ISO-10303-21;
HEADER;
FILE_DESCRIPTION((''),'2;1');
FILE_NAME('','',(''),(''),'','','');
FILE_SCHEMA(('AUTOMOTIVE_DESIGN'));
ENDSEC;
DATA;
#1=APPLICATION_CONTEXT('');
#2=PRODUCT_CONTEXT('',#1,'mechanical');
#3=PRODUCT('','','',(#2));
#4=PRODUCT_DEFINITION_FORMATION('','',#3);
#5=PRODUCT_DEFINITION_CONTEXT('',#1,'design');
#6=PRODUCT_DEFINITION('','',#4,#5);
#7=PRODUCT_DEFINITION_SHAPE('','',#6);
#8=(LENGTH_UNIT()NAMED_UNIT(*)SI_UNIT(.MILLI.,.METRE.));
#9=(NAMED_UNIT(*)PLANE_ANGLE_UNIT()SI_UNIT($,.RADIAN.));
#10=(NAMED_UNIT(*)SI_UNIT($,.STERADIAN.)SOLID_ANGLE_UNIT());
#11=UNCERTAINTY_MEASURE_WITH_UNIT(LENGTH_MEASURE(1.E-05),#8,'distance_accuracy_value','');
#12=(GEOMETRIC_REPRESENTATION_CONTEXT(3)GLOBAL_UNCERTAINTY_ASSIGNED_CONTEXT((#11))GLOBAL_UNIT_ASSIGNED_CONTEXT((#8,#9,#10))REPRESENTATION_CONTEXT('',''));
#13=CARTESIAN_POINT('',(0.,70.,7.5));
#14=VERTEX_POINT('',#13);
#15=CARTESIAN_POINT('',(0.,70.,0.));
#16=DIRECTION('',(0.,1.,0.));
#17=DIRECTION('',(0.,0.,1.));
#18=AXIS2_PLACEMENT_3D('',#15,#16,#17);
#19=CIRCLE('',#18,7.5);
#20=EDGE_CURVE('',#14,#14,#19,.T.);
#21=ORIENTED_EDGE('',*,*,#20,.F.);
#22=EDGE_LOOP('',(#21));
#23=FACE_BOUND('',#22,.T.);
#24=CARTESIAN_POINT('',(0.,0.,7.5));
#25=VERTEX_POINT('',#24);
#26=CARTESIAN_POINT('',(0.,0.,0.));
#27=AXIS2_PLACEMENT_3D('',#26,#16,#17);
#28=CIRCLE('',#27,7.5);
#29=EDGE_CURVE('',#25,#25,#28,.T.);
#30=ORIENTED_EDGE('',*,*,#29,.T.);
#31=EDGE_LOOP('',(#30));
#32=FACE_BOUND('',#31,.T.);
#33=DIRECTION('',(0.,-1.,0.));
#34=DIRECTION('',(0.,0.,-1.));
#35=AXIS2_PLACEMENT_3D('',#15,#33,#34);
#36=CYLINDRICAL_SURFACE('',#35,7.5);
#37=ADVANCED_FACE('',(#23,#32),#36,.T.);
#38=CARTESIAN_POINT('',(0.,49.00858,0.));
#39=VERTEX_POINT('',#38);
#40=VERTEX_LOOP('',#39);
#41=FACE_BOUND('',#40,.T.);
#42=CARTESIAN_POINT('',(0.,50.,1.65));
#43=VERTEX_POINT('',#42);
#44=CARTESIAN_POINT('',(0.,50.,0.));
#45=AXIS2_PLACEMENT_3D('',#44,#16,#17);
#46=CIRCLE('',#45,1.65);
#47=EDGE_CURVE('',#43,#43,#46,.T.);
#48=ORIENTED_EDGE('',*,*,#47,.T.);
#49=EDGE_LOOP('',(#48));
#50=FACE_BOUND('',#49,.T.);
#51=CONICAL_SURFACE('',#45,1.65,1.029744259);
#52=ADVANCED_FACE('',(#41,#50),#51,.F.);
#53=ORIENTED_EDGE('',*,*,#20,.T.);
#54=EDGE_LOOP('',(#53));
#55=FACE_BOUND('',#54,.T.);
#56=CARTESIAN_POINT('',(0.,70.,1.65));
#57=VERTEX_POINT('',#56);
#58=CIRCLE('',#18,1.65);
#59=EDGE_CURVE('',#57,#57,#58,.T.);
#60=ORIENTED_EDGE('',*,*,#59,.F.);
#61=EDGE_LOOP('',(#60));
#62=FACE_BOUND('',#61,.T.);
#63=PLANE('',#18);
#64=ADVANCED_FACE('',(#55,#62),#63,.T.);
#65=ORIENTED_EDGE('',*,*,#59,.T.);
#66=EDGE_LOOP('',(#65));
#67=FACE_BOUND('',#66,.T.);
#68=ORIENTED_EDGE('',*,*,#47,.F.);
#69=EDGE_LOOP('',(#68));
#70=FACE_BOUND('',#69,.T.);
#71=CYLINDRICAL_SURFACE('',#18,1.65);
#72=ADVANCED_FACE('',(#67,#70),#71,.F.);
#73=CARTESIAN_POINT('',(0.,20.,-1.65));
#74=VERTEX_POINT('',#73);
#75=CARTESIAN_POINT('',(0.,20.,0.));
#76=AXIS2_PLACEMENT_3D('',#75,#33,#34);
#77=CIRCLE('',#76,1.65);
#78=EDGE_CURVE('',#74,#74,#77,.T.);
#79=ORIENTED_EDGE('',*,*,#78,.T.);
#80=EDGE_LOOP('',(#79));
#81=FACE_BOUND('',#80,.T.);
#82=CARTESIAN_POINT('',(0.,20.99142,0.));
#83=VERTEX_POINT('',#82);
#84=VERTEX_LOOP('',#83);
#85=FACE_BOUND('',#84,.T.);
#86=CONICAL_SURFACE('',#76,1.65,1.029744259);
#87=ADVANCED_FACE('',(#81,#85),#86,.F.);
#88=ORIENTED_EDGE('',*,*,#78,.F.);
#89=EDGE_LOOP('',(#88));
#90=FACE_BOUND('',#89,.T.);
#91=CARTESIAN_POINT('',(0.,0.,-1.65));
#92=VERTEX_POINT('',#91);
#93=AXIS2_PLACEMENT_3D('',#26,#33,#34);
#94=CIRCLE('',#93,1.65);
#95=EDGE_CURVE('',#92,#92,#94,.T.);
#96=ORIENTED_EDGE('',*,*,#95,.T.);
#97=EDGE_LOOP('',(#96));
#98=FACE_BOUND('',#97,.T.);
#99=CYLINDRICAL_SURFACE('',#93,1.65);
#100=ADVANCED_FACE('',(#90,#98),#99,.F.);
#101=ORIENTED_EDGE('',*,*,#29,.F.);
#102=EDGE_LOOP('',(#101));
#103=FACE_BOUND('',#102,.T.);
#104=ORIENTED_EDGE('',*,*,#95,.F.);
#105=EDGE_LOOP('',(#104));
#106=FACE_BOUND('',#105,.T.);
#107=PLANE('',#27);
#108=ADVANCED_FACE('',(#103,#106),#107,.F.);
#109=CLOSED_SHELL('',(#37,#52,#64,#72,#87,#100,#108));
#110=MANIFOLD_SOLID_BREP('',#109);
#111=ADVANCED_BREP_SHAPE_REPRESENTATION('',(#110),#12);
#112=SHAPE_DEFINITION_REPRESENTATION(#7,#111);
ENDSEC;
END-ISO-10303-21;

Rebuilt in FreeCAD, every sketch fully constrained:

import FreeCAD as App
import Part
import Sketcher
from FreeCAD import Vector
Q = App.Units.Quantity

doc = App.newDocument("Part")
body = doc.addObject("PartDesign::Body", "Body")

# Sketch on XZ plane
sketch1 = body.newObject("Sketcher::SketchObject", "Sketch")
sketch1.AttachmentSupport = (doc.getObject("XZ_Plane"), [""])
sketch1.MapMode = "FlatFace"
sketch1.addGeometry(Part.Circle(Vector(0, 0, 0), Vector(0, 0, 1), 7.5), False)
sketch1.addConstraint([
    Sketcher.Constraint("Coincident", 0, 3, -1, 1),
    Sketcher.Constraint("Diameter", 0, 15.0),
])
pad1 = body.newObject("PartDesign::Pad", "Pad")
pad1.Profile = sketch1
pad1.Length = 70
pad1.Reversed = True

# Sketch on YZ plane
sketch2 = body.newObject("Sketcher::SketchObject", "Sketch001")
sketch2.AttachmentSupport = (doc.getObject("YZ_Plane"), [""])
sketch2.MapMode = "FlatFace"
sketch2.addGeometry([
    Part.LineSegment(Vector(49.00858, 0, 0), Vector(70, 0, 0)),
    Part.LineSegment(Vector(70, 0, 0), Vector(70, 1.65, 0)),
    Part.LineSegment(Vector(70, 1.65, 0), Vector(50, 1.65, 0)),
    Part.LineSegment(Vector(50, 1.65, 0), Vector(49.00858, 0, 0)),
], False)
sketch2.addConstraint([
    Sketcher.Constraint("Coincident", 0, 2, 1, 1),
    Sketcher.Constraint("Coincident", 1, 2, 2, 1),
    Sketcher.Constraint("Coincident", 2, 2, 3, 1),
    Sketcher.Constraint("Coincident", 3, 2, 0, 1),
    Sketcher.Constraint("Horizontal", 0),
    Sketcher.Constraint("Vertical", 1),
    Sketcher.Constraint("Horizontal", 2),
    Sketcher.Constraint("PointOnObject", 0, 2, -1),
    Sketcher.Constraint("DistanceX", 2, 2, 2, 1, 20.0),
    Sketcher.Constraint("Angle", 3, Q("-121 deg")),
    Sketcher.Constraint("DistanceX", -1, 1, 0, 2, 70.0),
    Sketcher.Constraint("DistanceY", 1, 1, 1, 2, 1.65),
])
groove = body.newObject("PartDesign::Groove", "Groove")
groove.Profile = sketch2
groove.ReferenceAxis = (sketch2, ["H_Axis"])
groove.Angle = 360
doc.recompute()

datumplane = body.newObject("PartDesign::Plane", "DatumPlane")
datumplane.AttachmentSupport = (doc.getObject("XZ_Plane"), [""])
datumplane.MapMode = "FlatFace"
datumplane.AttachmentOffset = App.Placement(Vector(0, 0, -35), App.Rotation())
mirrored = body.newObject("PartDesign::Mirrored", "Mirrored")
mirrored.Originals = [groove]
mirrored.MirrorPlane = (datumplane, [""])
body.Tip = mirrored

doc.recompute()
